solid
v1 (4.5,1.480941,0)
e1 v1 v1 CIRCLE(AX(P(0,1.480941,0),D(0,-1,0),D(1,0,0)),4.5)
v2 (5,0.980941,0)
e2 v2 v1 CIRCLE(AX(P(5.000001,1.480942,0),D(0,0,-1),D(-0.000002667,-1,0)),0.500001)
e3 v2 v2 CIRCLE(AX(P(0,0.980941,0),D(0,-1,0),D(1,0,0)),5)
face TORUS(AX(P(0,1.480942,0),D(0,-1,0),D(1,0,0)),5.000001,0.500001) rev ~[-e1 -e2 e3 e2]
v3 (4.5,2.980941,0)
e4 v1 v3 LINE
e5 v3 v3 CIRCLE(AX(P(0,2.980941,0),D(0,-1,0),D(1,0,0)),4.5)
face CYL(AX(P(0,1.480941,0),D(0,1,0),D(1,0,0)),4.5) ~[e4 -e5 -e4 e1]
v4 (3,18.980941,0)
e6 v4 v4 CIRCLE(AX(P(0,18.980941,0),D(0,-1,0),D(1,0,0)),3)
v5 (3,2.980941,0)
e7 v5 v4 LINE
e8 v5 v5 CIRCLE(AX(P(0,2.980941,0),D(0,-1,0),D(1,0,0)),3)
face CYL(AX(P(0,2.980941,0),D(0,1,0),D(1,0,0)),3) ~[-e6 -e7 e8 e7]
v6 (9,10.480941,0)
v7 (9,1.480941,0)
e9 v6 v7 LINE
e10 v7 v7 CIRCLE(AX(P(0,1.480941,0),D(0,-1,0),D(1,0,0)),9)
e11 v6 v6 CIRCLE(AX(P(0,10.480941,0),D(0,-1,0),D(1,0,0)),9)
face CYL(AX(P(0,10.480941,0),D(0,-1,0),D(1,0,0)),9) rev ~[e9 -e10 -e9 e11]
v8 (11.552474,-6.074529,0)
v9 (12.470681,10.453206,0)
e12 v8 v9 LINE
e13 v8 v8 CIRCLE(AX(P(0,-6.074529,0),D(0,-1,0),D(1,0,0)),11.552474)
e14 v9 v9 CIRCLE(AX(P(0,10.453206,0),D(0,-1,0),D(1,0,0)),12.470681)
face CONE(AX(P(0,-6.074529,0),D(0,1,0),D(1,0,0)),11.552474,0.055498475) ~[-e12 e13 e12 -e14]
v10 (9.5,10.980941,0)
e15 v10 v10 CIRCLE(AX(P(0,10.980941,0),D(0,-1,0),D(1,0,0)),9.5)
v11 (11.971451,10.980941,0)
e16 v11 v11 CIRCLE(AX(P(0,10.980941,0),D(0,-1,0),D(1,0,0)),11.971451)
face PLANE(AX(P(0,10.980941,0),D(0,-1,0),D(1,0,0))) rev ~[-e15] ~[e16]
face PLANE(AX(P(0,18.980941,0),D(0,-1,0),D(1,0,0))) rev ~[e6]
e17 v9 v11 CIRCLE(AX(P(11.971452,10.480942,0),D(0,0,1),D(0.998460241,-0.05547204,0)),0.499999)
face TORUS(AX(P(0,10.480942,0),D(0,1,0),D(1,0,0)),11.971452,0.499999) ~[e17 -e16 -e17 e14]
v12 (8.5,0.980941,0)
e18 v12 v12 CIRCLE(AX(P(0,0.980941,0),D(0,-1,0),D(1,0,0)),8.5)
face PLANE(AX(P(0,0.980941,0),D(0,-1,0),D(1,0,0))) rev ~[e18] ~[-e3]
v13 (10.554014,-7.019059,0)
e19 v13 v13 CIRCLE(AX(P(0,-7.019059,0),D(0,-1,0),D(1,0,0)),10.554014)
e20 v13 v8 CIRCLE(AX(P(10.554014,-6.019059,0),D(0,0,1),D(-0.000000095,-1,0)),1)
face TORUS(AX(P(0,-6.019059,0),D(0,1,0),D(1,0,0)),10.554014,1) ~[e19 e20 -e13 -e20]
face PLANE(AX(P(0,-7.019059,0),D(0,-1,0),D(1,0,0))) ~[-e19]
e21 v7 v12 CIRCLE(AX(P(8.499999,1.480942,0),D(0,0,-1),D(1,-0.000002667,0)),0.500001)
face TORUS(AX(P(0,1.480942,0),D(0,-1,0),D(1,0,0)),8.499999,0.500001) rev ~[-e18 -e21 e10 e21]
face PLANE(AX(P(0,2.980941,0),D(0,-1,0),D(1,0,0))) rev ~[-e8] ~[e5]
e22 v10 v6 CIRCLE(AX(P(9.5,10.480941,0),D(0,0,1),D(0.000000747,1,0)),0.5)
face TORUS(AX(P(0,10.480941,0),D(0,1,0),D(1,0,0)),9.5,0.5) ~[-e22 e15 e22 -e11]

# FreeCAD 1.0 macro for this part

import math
import FreeCAD as App
import Part
import Sketcher

doc = App.newDocument("Part")
body = doc.addObject("PartDesign::Body", "Body")

# Sketch on XY plane
sketch1 = body.newObject("Sketcher::SketchObject", "Sketch")
sketch1.AttachmentSupport = (doc.getObject("XY_Plane"), [""])
sketch1.MapMode = "FlatFace"
sketch1.addGeometry([
    Part.LineSegment(App.Vector(0, 18.980941, 0), App.Vector(0, -7.019059, 0)),  # 0
    Part.LineSegment(App.Vector(0, -7.019059, 0), App.Vector(10.554014, -7.019059, 0)),  # 1
    Part.ArcOfCircle(Part.Circle(App.Vector(10.554014, -6.019059, 0), App.Vector(0, 0, 1), 1), math.radians(-90.000005), math.radians(-3.179803)),  # 2
    Part.LineSegment(App.Vector(11.552474, -6.074529, 0), App.Vector(12.470681, 10.453206, 0)),  # 3
    Part.ArcOfCircle(Part.Circle(App.Vector(11.971452, 10.480942, 0), App.Vector(0, 0, 1), 0.499999), math.radians(-3.179946), math.radians(90.000097)),  # 4
    Part.LineSegment(App.Vector(11.971451, 10.980941, 0), App.Vector(9.5, 10.980941, 0)),  # 5
    Part.ArcOfCircle(Part.Circle(App.Vector(9.5, 10.480941, 0), App.Vector(0, 0, 1), 0.5), math.radians(89.999957), math.radians(180.000043)),  # 6
    Part.LineSegment(App.Vector(9, 10.480941, 0), App.Vector(9, 1.480941, 0)),  # 7
    Part.ArcOfCircle(Part.Circle(App.Vector(8.499999, 1.480942, 0), App.Vector(0, 0, 1), 0.500001), math.radians(-89.999847), math.radians(-0.000153)),  # 8
    Part.LineSegment(App.Vector(8.5, 0.980941, 0), App.Vector(5, 0.980941, 0)),  # 9
    Part.ArcOfCircle(Part.Circle(App.Vector(5.000001, 1.480942, 0), App.Vector(0, 0, 1), 0.500001), math.radians(-179.999847), math.radians(-90.000153)),  # 10
    Part.LineSegment(App.Vector(4.5, 1.480941, 0), App.Vector(4.5, 2.980941, 0)),  # 11
    Part.LineSegment(App.Vector(4.5, 2.980941, 0), App.Vector(3, 2.980941, 0)),  # 12
    Part.LineSegment(App.Vector(3, 2.980941, 0), App.Vector(3, 18.980941, 0)),  # 13
    Part.LineSegment(App.Vector(3, 18.980941, 0), App.Vector(0, 18.980941, 0)),  # 14
], False)
sketch1.addConstraint([
    Sketcher.Constraint("Coincident", 0, 2, 1, 1),
    Sketcher.Constraint("Tangent", 1, 2, 2, 1),
    Sketcher.Constraint("Tangent", 2, 2, 3, 1),
    Sketcher.Constraint("Coincident", 3, 2, 4, 1),
    Sketcher.Constraint("Tangent", 4, 2, 5, 1),
    Sketcher.Constraint("Tangent", 5, 2, 6, 1),
    Sketcher.Constraint("Tangent", 6, 2, 7, 1),
    Sketcher.Constraint("Coincident", 7, 2, 8, 2),
    Sketcher.Constraint("Coincident", 8, 1, 9, 1),
    Sketcher.Constraint("Coincident", 9, 2, 10, 2),
    Sketcher.Constraint("Coincident", 10, 1, 11, 1),
    Sketcher.Constraint("Coincident", 11, 2, 12, 1),
    Sketcher.Constraint("Coincident", 12, 2, 13, 1),
    Sketcher.Constraint("Coincident", 13, 2, 14, 1),
    Sketcher.Constraint("Coincident", 14, 2, 0, 1),
    Sketcher.Constraint("Vertical", 0),
    Sketcher.Constraint("Horizontal", 1),
    Sketcher.Constraint("Horizontal", 5),
    Sketcher.Constraint("Vertical", 7),
    Sketcher.Constraint("Horizontal", 9),
    Sketcher.Constraint("Vertical", 11),
    Sketcher.Constraint("Horizontal", 12),
    Sketcher.Constraint("Vertical", 13),
    Sketcher.Constraint("Horizontal", 14),
    Sketcher.Constraint("Equal", 4, 6),
    Sketcher.Constraint("Equal", 6, 8),
    Sketcher.Constraint("Equal", 8, 10),
    Sketcher.Constraint("PointOnObject", 0, 2, -2),
    Sketcher.Constraint("Horizontal", 10, 3, 7, 2),
    Sketcher.Constraint("Horizontal", 7, 2, 10, 1),
    Sketcher.Constraint("Vertical", 10, 3, 9, 2),
    Sketcher.Constraint("Equal", 12, 11),
    Sketcher.Constraint("Radius", 2, 1.0),
    Sketcher.Constraint("Radius", 4, 0.499999),
    Sketcher.Constraint("DistanceX", 14, 2, 14, 1, 3.0),
    Sketcher.Constraint("DistanceY", 0, 2, 0, 1, 26.0),
    Sketcher.Constraint("DistanceY", 7, 2, 7, 1, 9.0),
    Sketcher.Constraint("DistanceY", 13, 1, 13, 2, 16.0),
    Sketcher.Constraint("DistanceX", 9, 2, 9, 1, 3.5),
    Sketcher.Constraint("DistanceX", 12, 2, 12, 1, 1.5),
    Sketcher.Constraint("DistanceX", -1, 1, 6, 2, 9.0),
    Sketcher.Constraint("DistanceX", 5, 2, 5, 1, 2.471451),
    Sketcher.Constraint("Distance", 3, 16.553221),
    Sketcher.Constraint("DistanceX", 1, 1, 1, 2, 10.554014),
    Sketcher.Constraint("DistanceY", 2, 3, -1, 1, 6.019059),
])
revolution = body.newObject("PartDesign::Revolution", "Revolution")
revolution.Profile = sketch1
revolution.ReferenceAxis = (sketch1, ["V_Axis"])
revolution.Angle = 360

doc.recompute()
